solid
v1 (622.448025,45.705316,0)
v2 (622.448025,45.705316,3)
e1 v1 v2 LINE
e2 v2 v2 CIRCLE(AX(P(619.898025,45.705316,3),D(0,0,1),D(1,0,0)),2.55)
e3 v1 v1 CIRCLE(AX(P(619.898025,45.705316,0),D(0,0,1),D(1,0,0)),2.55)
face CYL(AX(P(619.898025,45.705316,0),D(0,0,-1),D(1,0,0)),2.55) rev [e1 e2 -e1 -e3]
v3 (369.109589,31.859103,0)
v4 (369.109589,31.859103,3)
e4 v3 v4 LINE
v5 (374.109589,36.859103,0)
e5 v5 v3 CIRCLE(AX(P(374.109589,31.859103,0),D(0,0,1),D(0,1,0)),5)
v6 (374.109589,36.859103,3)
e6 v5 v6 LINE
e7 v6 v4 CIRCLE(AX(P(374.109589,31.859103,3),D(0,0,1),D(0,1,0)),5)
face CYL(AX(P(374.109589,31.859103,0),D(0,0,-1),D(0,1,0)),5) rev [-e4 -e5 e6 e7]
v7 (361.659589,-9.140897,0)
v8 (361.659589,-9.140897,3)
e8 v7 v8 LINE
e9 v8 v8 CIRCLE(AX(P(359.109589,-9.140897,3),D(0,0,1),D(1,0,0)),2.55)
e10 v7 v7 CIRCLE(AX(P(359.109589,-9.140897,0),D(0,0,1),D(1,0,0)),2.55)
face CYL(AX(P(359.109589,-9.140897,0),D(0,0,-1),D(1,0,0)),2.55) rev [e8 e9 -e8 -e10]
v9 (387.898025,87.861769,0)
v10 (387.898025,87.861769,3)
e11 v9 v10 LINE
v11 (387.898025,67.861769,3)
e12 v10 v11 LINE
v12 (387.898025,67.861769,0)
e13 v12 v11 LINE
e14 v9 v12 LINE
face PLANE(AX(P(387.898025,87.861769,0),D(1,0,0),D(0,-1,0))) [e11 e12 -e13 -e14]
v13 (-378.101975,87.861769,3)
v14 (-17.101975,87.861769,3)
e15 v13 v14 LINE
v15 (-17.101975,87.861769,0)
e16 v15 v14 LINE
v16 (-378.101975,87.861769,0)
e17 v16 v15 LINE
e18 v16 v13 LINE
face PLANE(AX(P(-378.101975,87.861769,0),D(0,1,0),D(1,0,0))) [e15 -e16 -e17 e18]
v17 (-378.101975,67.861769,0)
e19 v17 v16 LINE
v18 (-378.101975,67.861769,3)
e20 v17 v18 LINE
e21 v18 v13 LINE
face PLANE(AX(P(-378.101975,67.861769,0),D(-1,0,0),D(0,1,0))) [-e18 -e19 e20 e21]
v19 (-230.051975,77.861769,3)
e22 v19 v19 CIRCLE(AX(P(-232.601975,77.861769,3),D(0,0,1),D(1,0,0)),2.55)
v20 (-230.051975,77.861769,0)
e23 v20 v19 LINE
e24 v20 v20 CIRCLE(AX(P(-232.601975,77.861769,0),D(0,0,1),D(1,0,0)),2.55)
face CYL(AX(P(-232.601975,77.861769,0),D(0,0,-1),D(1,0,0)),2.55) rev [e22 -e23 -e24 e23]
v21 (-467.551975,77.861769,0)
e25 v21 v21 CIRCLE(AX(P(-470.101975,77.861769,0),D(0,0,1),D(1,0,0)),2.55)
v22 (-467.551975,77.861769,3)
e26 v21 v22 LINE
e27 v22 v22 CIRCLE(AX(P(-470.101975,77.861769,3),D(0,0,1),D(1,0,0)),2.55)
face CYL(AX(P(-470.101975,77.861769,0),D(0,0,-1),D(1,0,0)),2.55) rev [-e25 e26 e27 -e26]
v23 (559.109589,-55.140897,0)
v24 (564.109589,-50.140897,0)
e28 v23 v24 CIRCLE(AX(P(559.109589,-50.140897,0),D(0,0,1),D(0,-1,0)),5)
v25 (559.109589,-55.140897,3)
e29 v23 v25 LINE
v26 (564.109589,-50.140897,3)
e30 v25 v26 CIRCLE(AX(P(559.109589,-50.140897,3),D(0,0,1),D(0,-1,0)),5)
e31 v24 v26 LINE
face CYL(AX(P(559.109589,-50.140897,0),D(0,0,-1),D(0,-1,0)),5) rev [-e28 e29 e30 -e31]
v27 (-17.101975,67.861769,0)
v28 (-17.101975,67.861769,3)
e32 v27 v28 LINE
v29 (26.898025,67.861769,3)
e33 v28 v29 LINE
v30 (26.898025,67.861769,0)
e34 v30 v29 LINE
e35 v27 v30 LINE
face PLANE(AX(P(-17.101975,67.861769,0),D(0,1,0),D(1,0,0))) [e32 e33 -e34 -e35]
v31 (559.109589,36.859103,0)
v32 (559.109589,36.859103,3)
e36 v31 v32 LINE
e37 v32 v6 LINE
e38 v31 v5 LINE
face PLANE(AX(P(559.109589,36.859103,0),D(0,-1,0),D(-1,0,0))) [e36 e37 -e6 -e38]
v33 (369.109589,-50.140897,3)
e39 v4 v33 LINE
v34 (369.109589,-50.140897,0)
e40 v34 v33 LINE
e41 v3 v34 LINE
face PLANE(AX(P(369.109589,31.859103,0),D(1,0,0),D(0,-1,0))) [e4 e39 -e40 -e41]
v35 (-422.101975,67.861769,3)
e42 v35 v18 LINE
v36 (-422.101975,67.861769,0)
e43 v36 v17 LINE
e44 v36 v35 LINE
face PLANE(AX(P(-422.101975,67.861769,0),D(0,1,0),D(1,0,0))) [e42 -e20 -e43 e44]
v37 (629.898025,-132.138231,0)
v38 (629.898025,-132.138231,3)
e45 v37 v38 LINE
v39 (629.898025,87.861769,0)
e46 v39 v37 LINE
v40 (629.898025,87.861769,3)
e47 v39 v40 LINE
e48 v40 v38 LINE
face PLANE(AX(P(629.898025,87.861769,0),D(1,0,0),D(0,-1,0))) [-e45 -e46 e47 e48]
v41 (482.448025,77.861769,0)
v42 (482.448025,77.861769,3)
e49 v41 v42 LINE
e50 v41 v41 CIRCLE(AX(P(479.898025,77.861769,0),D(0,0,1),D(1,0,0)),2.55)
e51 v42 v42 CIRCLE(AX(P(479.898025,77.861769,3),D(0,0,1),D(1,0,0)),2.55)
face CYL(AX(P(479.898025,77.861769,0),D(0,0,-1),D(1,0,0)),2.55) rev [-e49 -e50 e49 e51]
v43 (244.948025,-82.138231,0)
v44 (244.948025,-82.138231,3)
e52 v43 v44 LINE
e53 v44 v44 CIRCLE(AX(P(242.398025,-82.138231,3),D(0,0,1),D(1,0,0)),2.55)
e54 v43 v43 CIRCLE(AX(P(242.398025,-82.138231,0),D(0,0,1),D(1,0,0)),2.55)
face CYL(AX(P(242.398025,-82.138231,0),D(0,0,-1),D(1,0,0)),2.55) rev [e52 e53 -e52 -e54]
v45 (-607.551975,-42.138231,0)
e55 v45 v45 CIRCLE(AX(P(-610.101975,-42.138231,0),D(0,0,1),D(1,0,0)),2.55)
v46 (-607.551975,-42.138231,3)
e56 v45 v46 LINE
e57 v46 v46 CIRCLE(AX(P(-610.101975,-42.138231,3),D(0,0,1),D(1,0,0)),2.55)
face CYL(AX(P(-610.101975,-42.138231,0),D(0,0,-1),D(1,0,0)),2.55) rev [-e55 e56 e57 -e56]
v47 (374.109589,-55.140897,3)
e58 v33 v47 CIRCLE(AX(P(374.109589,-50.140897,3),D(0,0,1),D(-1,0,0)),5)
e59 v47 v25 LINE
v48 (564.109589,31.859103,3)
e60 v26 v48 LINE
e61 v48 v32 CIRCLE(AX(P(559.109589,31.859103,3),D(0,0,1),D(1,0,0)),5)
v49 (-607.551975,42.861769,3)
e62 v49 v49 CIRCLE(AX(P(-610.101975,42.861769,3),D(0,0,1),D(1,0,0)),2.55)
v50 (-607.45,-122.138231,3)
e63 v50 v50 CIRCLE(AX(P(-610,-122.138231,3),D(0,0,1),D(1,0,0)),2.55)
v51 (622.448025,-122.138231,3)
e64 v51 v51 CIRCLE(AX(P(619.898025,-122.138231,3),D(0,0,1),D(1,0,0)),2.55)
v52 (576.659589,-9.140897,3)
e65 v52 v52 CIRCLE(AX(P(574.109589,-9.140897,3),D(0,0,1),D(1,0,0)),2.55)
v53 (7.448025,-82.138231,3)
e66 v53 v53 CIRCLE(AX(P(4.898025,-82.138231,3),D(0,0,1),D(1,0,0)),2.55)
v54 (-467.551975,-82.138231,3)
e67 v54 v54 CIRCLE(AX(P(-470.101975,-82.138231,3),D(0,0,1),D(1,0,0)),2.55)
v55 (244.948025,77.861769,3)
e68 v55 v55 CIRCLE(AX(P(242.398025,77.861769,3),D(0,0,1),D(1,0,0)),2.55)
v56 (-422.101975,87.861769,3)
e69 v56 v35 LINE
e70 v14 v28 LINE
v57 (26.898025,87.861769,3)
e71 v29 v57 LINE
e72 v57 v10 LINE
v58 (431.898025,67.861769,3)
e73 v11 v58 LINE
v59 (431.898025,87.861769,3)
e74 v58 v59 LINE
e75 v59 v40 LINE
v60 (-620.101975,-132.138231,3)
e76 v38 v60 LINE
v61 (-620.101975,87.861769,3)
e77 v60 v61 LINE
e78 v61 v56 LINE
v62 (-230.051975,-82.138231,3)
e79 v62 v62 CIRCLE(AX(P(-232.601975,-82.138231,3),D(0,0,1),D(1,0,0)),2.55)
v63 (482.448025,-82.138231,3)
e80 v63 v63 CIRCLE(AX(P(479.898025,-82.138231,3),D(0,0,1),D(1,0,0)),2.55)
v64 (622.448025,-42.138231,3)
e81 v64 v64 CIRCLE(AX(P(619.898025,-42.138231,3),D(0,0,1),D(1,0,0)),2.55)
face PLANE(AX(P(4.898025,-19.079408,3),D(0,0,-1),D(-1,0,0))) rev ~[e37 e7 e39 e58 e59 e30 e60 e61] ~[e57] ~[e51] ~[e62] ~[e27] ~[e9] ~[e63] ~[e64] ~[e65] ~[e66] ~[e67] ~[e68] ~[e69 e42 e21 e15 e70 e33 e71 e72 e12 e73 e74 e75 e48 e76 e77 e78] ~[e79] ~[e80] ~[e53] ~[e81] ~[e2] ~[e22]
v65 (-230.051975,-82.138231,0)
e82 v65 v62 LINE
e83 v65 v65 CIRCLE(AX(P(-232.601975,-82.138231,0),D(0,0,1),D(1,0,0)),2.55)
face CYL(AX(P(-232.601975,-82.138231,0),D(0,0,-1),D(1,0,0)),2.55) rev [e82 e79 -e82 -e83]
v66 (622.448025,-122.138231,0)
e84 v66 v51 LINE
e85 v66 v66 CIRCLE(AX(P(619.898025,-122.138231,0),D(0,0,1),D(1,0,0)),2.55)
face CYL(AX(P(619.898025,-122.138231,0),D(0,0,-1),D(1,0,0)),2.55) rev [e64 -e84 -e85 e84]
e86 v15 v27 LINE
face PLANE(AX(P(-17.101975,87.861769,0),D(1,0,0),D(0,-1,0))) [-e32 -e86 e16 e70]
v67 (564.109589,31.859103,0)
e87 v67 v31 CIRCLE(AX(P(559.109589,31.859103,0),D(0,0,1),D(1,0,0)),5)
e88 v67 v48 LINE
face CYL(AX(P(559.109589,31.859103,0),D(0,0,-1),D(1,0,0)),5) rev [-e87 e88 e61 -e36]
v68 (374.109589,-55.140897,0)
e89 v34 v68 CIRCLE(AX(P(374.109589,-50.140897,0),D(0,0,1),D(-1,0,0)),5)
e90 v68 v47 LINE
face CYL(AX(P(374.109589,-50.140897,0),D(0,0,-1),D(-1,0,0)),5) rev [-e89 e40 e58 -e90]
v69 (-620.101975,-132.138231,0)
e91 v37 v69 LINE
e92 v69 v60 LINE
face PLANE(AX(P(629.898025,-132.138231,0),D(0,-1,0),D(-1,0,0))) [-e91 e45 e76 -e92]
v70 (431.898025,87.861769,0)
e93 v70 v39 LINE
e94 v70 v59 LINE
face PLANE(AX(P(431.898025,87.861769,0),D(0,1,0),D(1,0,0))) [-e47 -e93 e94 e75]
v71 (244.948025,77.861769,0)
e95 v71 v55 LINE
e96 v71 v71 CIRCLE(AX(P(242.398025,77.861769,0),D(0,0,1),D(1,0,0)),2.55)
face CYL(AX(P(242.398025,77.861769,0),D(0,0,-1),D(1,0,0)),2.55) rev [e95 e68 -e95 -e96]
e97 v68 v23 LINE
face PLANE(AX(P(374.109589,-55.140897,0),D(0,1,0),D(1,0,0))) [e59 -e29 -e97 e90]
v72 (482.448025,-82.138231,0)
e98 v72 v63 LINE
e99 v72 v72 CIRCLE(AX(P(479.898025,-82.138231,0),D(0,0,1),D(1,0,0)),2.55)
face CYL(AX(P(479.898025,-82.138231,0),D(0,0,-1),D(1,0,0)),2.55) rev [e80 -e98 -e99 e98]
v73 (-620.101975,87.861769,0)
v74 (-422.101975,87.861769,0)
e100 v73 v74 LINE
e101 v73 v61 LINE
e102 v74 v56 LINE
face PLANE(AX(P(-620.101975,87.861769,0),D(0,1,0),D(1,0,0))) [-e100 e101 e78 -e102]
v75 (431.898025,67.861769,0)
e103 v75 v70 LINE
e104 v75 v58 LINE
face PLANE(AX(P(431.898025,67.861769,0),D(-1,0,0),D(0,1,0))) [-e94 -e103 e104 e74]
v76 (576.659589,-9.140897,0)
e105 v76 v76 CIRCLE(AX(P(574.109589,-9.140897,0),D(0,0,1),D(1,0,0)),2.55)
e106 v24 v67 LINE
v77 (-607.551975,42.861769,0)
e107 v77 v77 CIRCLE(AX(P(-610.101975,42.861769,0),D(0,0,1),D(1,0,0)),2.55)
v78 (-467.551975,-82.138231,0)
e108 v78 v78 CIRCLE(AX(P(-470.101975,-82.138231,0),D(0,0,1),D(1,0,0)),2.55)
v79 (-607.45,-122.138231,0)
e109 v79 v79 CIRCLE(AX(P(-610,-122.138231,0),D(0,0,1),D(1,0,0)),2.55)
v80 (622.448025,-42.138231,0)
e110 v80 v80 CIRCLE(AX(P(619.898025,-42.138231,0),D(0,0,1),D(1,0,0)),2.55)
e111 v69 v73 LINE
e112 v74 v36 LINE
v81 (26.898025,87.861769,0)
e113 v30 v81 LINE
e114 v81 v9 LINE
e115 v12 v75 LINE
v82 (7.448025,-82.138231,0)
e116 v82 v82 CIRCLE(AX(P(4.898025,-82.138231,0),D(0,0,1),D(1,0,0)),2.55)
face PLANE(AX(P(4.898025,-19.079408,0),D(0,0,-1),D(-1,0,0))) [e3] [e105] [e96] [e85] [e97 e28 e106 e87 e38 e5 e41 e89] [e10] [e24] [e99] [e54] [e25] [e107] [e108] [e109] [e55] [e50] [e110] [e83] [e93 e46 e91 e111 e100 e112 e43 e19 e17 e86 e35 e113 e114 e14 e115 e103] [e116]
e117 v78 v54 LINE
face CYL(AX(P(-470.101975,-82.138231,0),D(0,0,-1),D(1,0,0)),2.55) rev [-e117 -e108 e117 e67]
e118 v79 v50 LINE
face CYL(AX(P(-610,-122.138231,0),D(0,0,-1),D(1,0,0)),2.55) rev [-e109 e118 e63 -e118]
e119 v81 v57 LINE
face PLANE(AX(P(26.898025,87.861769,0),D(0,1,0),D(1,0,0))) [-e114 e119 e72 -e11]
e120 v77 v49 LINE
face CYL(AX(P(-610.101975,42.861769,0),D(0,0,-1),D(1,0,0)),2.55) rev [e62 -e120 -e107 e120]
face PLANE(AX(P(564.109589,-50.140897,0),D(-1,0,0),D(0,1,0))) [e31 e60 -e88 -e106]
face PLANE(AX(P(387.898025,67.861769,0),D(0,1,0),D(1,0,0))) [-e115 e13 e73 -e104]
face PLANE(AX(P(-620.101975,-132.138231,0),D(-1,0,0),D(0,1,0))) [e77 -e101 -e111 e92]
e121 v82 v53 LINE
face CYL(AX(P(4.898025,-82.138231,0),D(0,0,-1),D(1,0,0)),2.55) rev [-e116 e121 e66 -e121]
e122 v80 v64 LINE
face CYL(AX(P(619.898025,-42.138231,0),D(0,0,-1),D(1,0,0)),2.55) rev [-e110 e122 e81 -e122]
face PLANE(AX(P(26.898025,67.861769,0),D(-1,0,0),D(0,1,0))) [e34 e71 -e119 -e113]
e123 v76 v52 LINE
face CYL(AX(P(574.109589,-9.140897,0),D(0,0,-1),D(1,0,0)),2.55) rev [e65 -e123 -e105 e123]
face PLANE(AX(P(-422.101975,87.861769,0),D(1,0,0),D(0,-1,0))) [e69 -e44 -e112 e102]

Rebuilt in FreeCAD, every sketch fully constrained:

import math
import FreeCAD as App
import Part
import Sketcher


def add_polygon(sketch, points):
    """Adds a closed chain of lines whose ends are joined by coincident constraints."""
    first, n = sketch.GeometryCount, len(points)
    for a, b in zip(points, points[1:] + points[:1]):
        sketch.addGeometry(Part.LineSegment(App.Vector(*a, 0), App.Vector(*b, 0)), False)
    for i in range(n):
        sketch.addConstraint(Sketcher.Constraint("Coincident", first + i, 2, first + (i + 1) % n, 1))

doc = App.newDocument("Part")
body = doc.addObject("PartDesign::Body", "Body")

# Sketch on XY plane
sketch1 = doc.addObject("Sketcher::SketchObject", "Sketch")
body.addObject(sketch1)
sketch1.AttachmentSupport = (doc.XY_Plane, [""])
sketch1.MapMode = "FlatFace"
add_polygon(sketch1, [(629.898025, 87.861769), (431.898025, 87.861769), (431.898025, 67.861769), (387.898025, 67.861769), (387.898025, 87.861769), (26.898025, 87.861769), (26.898025, 67.861769), (-17.101975, 67.861769), (-17.101975, 87.861769), (-378.101975, 87.861769), (-378.101975, 67.861769), (-422.101975, 67.861769), (-422.101975, 87.861769), (-620.101975, 87.861769), (-620.101975, -132.138231), (629.898025, -132.138231)])  # lines 0-15
sketch1.addGeometry(Part.Circle(App.Vector(619.898025, -122.138231, 0), App.Vector(0, 0, 1), 2.55), False)  # 16
sketch1.addGeometry(Part.Circle(App.Vector(479.898025, -82.138231, 0), App.Vector(0, 0, 1), 2.55), False)  # 17
sketch1.addGeometry(Part.Circle(App.Vector(242.398025, -82.138231, 0), App.Vector(0, 0, 1), 2.55), False)  # 18
sketch1.addGeometry(Part.Circle(App.Vector(619.898025, -42.138231, 0), App.Vector(0, 0, 1), 2.55), False)  # 19
sketch1.addGeometry(Part.Circle(App.Vector(4.898025, -82.138231, 0), App.Vector(0, 0, 1), 2.55), False)  # 20
sketch1.addGeometry(Part.Circle(App.Vector(-232.601975, -82.138231, 0), App.Vector(0, 0, 1), 2.55), False)  # 21
sketch1.addGeometry(Part.Circle(App.Vector(-610, -122.138231, 0), App.Vector(0, 0, 1), 2.55), False)  # 22
sketch1.addGeometry(Part.Circle(App.Vector(-470.101975, -82.138231, 0), App.Vector(0, 0, 1), 2.55), False)  # 23
sketch1.addGeometry(Part.Circle(App.Vector(-610.101975, -42.138231, 0), App.Vector(0, 0, 1), 2.55), False)  # 24
sketch1.addGeometry(Part.Circle(App.Vector(574.109589, -9.140897, 0), App.Vector(0, 0, 1), 2.55), False)  # 25
sketch1.addGeometry(Part.ArcOfCircle(Part.Circle(App.Vector(559.109589, 31.859103, 0), App.Vector(0, 0, 1), 5), math.radians(0), math.radians(90)), False)  # 26
sketch1.addGeometry(Part.LineSegment(App.Vector(564.109589, 31.859103, 0), App.Vector(564.109589, -50.140897, 0)), False)  # 27
sketch1.addGeometry(Part.ArcOfCircle(Part.Circle(App.Vector(559.109589, -50.140897, 0), App.Vector(0, 0, 1), 5), math.radians(-90), math.radians(0)), False)  # 28
sketch1.addGeometry(Part.LineSegment(App.Vector(559.109589, -55.140897, 0), App.Vector(374.109589, -55.140897, 0)), False)  # 29
sketch1.addGeometry(Part.ArcOfCircle(Part.Circle(App.Vector(374.109589, -50.140897, 0), App.Vector(0, 0, 1), 5), math.radians(180), math.radians(270)), False)  # 30
sketch1.addGeometry(Part.LineSegment(App.Vector(369.109589, -50.140897, 0), App.Vector(369.109589, 31.859103, 0)), False)  # 31
sketch1.addGeometry(Part.ArcOfCircle(Part.Circle(App.Vector(374.109589, 31.859103, 0), App.Vector(0, 0, 1), 5), math.radians(90), math.radians(180)), False)  # 32
sketch1.addGeometry(Part.LineSegment(App.Vector(374.109589, 36.859103, 0), App.Vector(559.109589, 36.859103, 0)), False)  # 33
sketch1.addGeometry(Part.Circle(App.Vector(359.109589, -9.140897, 0), App.Vector(0, 0, 1), 2.55), False)  # 34
sketch1.addGeometry(Part.Circle(App.Vector(619.898025, 45.705316, 0), App.Vector(0, 0, 1), 2.55), False)  # 35
sketch1.addGeometry(Part.Circle(App.Vector(479.898025, 77.861769, 0), App.Vector(0, 0, 1), 2.55), False)  # 36
sketch1.addGeometry(Part.Circle(App.Vector(242.398025, 77.861769, 0), App.Vector(0, 0, 1), 2.55), False)  # 37
sketch1.addGeometry(Part.Circle(App.Vector(-232.601975, 77.861769, 0), App.Vector(0, 0, 1), 2.55), False)  # 38
sketch1.addGeometry(Part.Circle(App.Vector(-610.101975, 42.861769, 0), App.Vector(0, 0, 1), 2.55), False)  # 39
sketch1.addGeometry(Part.Circle(App.Vector(-470.101975, 77.861769, 0), App.Vector(0, 0, 1), 2.55), False)  # 40
sketch1.addConstraint(Sketcher.Constraint("Tangent", 26, 1, 27, 1))
sketch1.addConstraint(Sketcher.Constraint("Tangent", 27, 2, 28, 2))
sketch1.addConstraint(Sketcher.Constraint("Tangent", 28, 1, 29, 1))
sketch1.addConstraint(Sketcher.Constraint("Tangent", 29, 2, 30, 2))
sketch1.addConstraint(Sketcher.Constraint("Tangent", 30, 1, 31, 1))
sketch1.addConstraint(Sketcher.Constraint("Tangent", 31, 2, 32, 2))
sketch1.addConstraint(Sketcher.Constraint("Tangent", 32, 1, 33, 1))
sketch1.addConstraint(Sketcher.Constraint("Tangent", 33, 2, 26, 2))
sketch1.addConstraint(Sketcher.Constraint("Horizontal", 0))
sketch1.addConstraint(Sketcher.Constraint("Vertical", 1))
sketch1.addConstraint(Sketcher.Constraint("Horizontal", 2))
sketch1.addConstraint(Sketcher.Constraint("Vertical", 3))
sketch1.addConstraint(Sketcher.Constraint("Horizontal", 4))
sketch1.addConstraint(Sketcher.Constraint("Vertical", 5))
sketch1.addConstraint(Sketcher.Constraint("Horizontal", 6))
sketch1.addConstraint(Sketcher.Constraint("Vertical", 7))
sketch1.addConstraint(Sketcher.Constraint("Horizontal", 8))
sketch1.addConstraint(Sketcher.Constraint("Vertical", 9))
sketch1.addConstraint(Sketcher.Constraint("Horizontal", 10))
sketch1.addConstraint(Sketcher.Constraint("Vertical", 11))
sketch1.addConstraint(Sketcher.Constraint("Horizontal", 12))
sketch1.addConstraint(Sketcher.Constraint("Vertical", 13))
sketch1.addConstraint(Sketcher.Constraint("Horizontal", 14))
sketch1.addConstraint(Sketcher.Constraint("Vertical", 15))
sketch1.addConstraint(Sketcher.Constraint("Vertical", 27))
sketch1.addConstraint(Sketcher.Constraint("Horizontal", 29))
sketch1.addConstraint(Sketcher.Constraint("Vertical", 31))
sketch1.addConstraint(Sketcher.Constraint("Horizontal", 33))
sketch1.addConstraint(Sketcher.Constraint("Equal", 16, 17))
sketch1.addConstraint(Sketcher.Constraint("Equal", 17, 18))
sketch1.addConstraint(Sketcher.Constraint("Equal", 18, 19))
sketch1.addConstraint(Sketcher.Constraint("Equal", 19, 20))
sketch1.addConstraint(Sketcher.Constraint("Equal", 20, 21))
sketch1.addConstraint(Sketcher.Constraint("Equal", 21, 22))
sketch1.addConstraint(Sketcher.Constraint("Equal", 22, 23))
sketch1.addConstraint(Sketcher.Constraint("Equal", 23, 24))
sketch1.addConstraint(Sketcher.Constraint("Equal", 24, 25))
sketch1.addConstraint(Sketcher.Constraint("Equal", 26, 28))
sketch1.addConstraint(Sketcher.Constraint("Equal", 28, 30))
sketch1.addConstraint(Sketcher.Constraint("Equal", 30, 32))
sketch1.addConstraint(Sketcher.Constraint("Equal", 25, 34))
sketch1.addConstraint(Sketcher.Constraint("Equal", 34, 35))
sketch1.addConstraint(Sketcher.Constraint("Equal", 35, 36))
sketch1.addConstraint(Sketcher.Constraint("Equal", 36, 37))
sketch1.addConstraint(Sketcher.Constraint("Equal", 37, 38))
sketch1.addConstraint(Sketcher.Constraint("Equal", 38, 39))
sketch1.addConstraint(Sketcher.Constraint("Equal", 39, 40))
sketch1.addConstraint(Sketcher.Constraint("Horizontal", 17, 3, 18, 3))
sketch1.addConstraint(Sketcher.Constraint("Horizontal", 18, 3, 20, 3))
sketch1.addConstraint(Sketcher.Constraint("Horizontal", 20, 3, 21, 3))
sketch1.addConstraint(Sketcher.Constraint("Horizontal", 16, 3, 22, 3))
sketch1.addConstraint(Sketcher.Constraint("Horizontal", 21, 3, 23, 3))
sketch1.addConstraint(Sketcher.Constraint("Horizontal", 19, 3, 24, 3))
sketch1.addConstraint(Sketcher.Constraint("Horizontal", 25, 3, 34, 3))
sketch1.addConstraint(Sketcher.Constraint("Horizontal", 36, 3, 37, 3))
sketch1.addConstraint(Sketcher.Constraint("Horizontal", 37, 3, 38, 3))
sketch1.addConstraint(Sketcher.Constraint("Horizontal", 38, 3, 40, 3))
sketch1.addConstraint(Sketcher.Constraint("Horizontal", 0, 2, 3, 2))
sketch1.addConstraint(Sketcher.Constraint("Horizontal", 2, 2, 5, 2))
sketch1.addConstraint(Sketcher.Constraint("Horizontal", 4, 2, 7, 2))
sketch1.addConstraint(Sketcher.Constraint("Horizontal", 6, 2, 9, 2))
sketch1.addConstraint(Sketcher.Constraint("Horizontal", 8, 2, 11, 2))
sketch1.addConstraint(Sketcher.Constraint("Vertical", 16, 3, 19, 3))
sketch1.addConstraint(Sketcher.Constraint("Vertical", 19, 3, 35, 3))
sketch1.addConstraint(Sketcher.Constraint("Vertical", 17, 3, 36, 3))
sketch1.addConstraint(Sketcher.Constraint("Vertical", 18, 3, 37, 3))
sketch1.addConstraint(Sketcher.Constraint("Vertical", 21, 3, 38, 3))
sketch1.addConstraint(Sketcher.Constraint("Vertical", 24, 3, 39, 3))
sketch1.addConstraint(Sketcher.Constraint("Vertical", 23, 3, 40, 3))
sketch1.addConstraint(Sketcher.Constraint("Equal", 2, 6))
sketch1.addConstraint(Sketcher.Constraint("Equal", 4, 8))
sketch1.addConstraint(Sketcher.Constraint("Equal", 6, 10))
sketch1.addConstraint(Sketcher.Constraint("Equal", 0, 12))
sketch1.addConstraint(Sketcher.Constraint("Radius", 26, 5.0))
sketch1.addConstraint(Sketcher.Constraint("Diameter", 16, 5.1))
sketch1.addConstraint(Sketcher.Constraint("DistanceX", 0, 2, 0, 1, 198.0))
sketch1.addConstraint(Sketcher.Constraint("DistanceX", 2, 2, 2, 1, 44.0))
sketch1.addConstraint(Sketcher.Constraint("DistanceX", 4, 2, 4, 1, 361.0))
sketch1.addConstraint(Sketcher.Constraint("DistanceX", 29, 2, 29, 1, 185.0))
sketch1.addConstraint(Sketcher.Constraint("DistanceY", 1, 2, 1, 1, 20.0))
sketch1.addConstraint(Sketcher.Constraint("DistanceY", 13, 2, 13, 1, 220.0))
sketch1.addConstraint(Sketcher.Constraint("DistanceY", 27, 2, 27, 1, 82.0))
sketch1.addConstraint(Sketcher.Constraint("DistanceX", 22, 3, -1, 1, 610.0))
sketch1.addConstraint(Sketcher.Constraint("DistanceX", 17, 3, 16, 3, 140.0))
sketch1.addConstraint(Sketcher.Constraint("DistanceY", 16, 3, 17, 3, 40.0))
sketch1.addConstraint(Sketcher.Constraint("DistanceY", 16, 3, 19, 3, 80.0))
sketch1.addConstraint(Sketcher.Constraint("DistanceX", 20, 3, 17, 3, 475.0))
sketch1.addConstraint(Sketcher.Constraint("DistanceX", 21, 3, 18, 3, 475.0))
sketch1.addConstraint(Sketcher.Constraint("DistanceX", 23, 3, 20, 3, 475.0))
sketch1.addConstraint(Sketcher.Constraint("DistanceX", 24, 3, 23, 3, 140.0))
sketch1.addConstraint(Sketcher.Constraint("DistanceX", 26, 3, 25, 3, 15.0))
sketch1.addConstraint(Sketcher.Constraint("DistanceY", 25, 3, 26, 3, 41.0))
sketch1.addConstraint(Sketcher.Constraint("DistanceX", 34, 3, 30, 3, 15.0))
sketch1.addConstraint(Sketcher.Constraint("DistanceY", 18, 3, 37, 3, 160.0))
sketch1.addConstraint(Sketcher.Constraint("DistanceY", 24, 3, 39, 3, 85.0))
sketch1.addConstraint(Sketcher.Constraint("DistanceX", 0, 2, 36, 3, 48.0))
sketch1.addConstraint(Sketcher.Constraint("DistanceY", 36, 3, 0, 2, 10.0))
sketch1.addConstraint(Sketcher.Constraint("DistanceX", 18, 3, 17, 3, 237.5))
sketch1.addConstraint(Sketcher.Constraint("DistanceY", 16, 3, -1, 1, 122.138231))
sketch1.addConstraint(Sketcher.Constraint("DistanceX", -1, 1, 25, 3, 574.109589))
sketch1.addConstraint(Sketcher.Constraint("DistanceX", -1, 1, 16, 3, 619.898025))
sketch1.addConstraint(Sketcher.Constraint("DistanceY", 25, 3, -1, 1, 9.140897))
sketch1.addConstraint(Sketcher.Constraint("DistanceY", -1, 1, 35, 3, 45.705316))
pad1 = doc.addObject("PartDesign::Pad", "Pad")
body.addObject(pad1)
pad1.Profile = sketch1
pad1.Length = 3

doc.recompute()
